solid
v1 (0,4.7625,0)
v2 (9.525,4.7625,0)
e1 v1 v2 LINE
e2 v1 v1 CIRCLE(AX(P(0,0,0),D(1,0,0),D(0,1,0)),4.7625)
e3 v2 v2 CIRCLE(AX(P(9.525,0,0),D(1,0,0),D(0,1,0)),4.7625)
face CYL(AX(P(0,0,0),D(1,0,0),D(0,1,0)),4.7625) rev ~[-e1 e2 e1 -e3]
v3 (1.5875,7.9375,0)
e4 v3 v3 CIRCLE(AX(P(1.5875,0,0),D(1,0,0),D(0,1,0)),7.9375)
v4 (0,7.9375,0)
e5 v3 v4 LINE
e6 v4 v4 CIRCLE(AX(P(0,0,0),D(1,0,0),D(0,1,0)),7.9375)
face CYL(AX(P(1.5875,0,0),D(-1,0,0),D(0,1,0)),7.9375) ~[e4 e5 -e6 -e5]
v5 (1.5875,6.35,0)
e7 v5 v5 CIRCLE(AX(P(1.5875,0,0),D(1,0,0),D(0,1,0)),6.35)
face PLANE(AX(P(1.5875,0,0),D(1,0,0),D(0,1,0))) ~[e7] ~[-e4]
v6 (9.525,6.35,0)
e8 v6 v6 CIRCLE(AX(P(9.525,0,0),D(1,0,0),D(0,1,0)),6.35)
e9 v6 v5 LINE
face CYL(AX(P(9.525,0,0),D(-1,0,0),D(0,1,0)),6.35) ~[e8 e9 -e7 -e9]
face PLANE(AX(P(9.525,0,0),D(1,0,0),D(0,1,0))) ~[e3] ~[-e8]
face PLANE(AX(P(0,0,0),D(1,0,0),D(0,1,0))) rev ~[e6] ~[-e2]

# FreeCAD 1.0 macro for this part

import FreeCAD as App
import Part
import Sketcher
Q = App.Units.Quantity

doc = App.newDocument("Part")
params = doc.addObject("Spreadsheet::Sheet", "Params")
for row, (alias, value) in enumerate([
    ("sketch1_width", "0.0625 in"),
    ("sketch1_width2", "0.375 in"),
    ("revolution_angle", "360 deg"),
], start=1):
    params.set(f"A{row}", alias)
    params.set(f"B{row}", "=" + value)
    params.setAlias(f"B{row}", alias)

body = doc.addObject("PartDesign::Body", "Body")

sketch1 = doc.addObject("Sketcher::SketchObject", "Sketch")
body.addObject(sketch1)
sketch1.AttachmentSupport = (doc.XY_Plane, [""])
sketch1.MapMode = "FlatFace"
sketch1.addGeometry([
    Part.LineSegment(App.Vector(1.6, 7.9, 0), App.Vector(0, 7.9, 0)),
    Part.LineSegment(App.Vector(0, 7.9, 0), App.Vector(0, 4.8, 0)),
    Part.LineSegment(App.Vector(0, 4.8, 0), App.Vector(9.5, 4.8, 0)),
    Part.LineSegment(App.Vector(9.5, 4.8, 0), App.Vector(9.5, 6.3, 0)),
    Part.LineSegment(App.Vector(9.5, 6.3, 0), App.Vector(1.6, 6.3, 0)),
    Part.LineSegment(App.Vector(1.6, 6.3, 0), App.Vector(1.6, 7.9, 0)),
], False)
sketch1.addConstraint([
    Sketcher.Constraint("Coincident", 0, 2, 1, 1),
    Sketcher.Constraint("Coincident", 1, 2, 2, 1),
    Sketcher.Constraint("Coincident", 2, 2, 3, 1),
    Sketcher.Constraint("Coincident", 3, 2, 4, 1),
    Sketcher.Constraint("Coincident", 4, 2, 5, 1),
    Sketcher.Constraint("Coincident", 5, 2, 0, 1),
    Sketcher.Constraint("Horizontal", 0),
    Sketcher.Constraint("Vertical", 1),
    Sketcher.Constraint("Horizontal", 2),
    Sketcher.Constraint("Vertical", 3),
    Sketcher.Constraint("Horizontal", 4),
    Sketcher.Constraint("Vertical", 5),
    Sketcher.Constraint("PointOnObject", 0, 2, -2),
    Sketcher.Constraint("Equal", 0, 3),
    Sketcher.Constraint("Equal", 3, 5),
    Sketcher.Constraint("DistanceX", 0, 2, 0, 1, Q("0.0625 in")),
    Sketcher.Constraint("DistanceX", 2, 1, 2, 2, Q("0.375 in")),
    Sketcher.Constraint("DistanceY", -1, 1, 3, 2, Q("0.25 in")),
])
sketch1.setExpression("Constraints[15]", "Params.sketch1_width")
sketch1.setExpression("Constraints[16]", "Params.sketch1_width2")
revolution = doc.addObject("PartDesign::Revolution", "Revolution")
body.addObject(revolution)
revolution.Profile = sketch1
revolution.ReferenceAxis = (sketch1, ["H_Axis"])
revolution.setExpression("Angle", "Params.revolution_angle")

doc.recompute()
